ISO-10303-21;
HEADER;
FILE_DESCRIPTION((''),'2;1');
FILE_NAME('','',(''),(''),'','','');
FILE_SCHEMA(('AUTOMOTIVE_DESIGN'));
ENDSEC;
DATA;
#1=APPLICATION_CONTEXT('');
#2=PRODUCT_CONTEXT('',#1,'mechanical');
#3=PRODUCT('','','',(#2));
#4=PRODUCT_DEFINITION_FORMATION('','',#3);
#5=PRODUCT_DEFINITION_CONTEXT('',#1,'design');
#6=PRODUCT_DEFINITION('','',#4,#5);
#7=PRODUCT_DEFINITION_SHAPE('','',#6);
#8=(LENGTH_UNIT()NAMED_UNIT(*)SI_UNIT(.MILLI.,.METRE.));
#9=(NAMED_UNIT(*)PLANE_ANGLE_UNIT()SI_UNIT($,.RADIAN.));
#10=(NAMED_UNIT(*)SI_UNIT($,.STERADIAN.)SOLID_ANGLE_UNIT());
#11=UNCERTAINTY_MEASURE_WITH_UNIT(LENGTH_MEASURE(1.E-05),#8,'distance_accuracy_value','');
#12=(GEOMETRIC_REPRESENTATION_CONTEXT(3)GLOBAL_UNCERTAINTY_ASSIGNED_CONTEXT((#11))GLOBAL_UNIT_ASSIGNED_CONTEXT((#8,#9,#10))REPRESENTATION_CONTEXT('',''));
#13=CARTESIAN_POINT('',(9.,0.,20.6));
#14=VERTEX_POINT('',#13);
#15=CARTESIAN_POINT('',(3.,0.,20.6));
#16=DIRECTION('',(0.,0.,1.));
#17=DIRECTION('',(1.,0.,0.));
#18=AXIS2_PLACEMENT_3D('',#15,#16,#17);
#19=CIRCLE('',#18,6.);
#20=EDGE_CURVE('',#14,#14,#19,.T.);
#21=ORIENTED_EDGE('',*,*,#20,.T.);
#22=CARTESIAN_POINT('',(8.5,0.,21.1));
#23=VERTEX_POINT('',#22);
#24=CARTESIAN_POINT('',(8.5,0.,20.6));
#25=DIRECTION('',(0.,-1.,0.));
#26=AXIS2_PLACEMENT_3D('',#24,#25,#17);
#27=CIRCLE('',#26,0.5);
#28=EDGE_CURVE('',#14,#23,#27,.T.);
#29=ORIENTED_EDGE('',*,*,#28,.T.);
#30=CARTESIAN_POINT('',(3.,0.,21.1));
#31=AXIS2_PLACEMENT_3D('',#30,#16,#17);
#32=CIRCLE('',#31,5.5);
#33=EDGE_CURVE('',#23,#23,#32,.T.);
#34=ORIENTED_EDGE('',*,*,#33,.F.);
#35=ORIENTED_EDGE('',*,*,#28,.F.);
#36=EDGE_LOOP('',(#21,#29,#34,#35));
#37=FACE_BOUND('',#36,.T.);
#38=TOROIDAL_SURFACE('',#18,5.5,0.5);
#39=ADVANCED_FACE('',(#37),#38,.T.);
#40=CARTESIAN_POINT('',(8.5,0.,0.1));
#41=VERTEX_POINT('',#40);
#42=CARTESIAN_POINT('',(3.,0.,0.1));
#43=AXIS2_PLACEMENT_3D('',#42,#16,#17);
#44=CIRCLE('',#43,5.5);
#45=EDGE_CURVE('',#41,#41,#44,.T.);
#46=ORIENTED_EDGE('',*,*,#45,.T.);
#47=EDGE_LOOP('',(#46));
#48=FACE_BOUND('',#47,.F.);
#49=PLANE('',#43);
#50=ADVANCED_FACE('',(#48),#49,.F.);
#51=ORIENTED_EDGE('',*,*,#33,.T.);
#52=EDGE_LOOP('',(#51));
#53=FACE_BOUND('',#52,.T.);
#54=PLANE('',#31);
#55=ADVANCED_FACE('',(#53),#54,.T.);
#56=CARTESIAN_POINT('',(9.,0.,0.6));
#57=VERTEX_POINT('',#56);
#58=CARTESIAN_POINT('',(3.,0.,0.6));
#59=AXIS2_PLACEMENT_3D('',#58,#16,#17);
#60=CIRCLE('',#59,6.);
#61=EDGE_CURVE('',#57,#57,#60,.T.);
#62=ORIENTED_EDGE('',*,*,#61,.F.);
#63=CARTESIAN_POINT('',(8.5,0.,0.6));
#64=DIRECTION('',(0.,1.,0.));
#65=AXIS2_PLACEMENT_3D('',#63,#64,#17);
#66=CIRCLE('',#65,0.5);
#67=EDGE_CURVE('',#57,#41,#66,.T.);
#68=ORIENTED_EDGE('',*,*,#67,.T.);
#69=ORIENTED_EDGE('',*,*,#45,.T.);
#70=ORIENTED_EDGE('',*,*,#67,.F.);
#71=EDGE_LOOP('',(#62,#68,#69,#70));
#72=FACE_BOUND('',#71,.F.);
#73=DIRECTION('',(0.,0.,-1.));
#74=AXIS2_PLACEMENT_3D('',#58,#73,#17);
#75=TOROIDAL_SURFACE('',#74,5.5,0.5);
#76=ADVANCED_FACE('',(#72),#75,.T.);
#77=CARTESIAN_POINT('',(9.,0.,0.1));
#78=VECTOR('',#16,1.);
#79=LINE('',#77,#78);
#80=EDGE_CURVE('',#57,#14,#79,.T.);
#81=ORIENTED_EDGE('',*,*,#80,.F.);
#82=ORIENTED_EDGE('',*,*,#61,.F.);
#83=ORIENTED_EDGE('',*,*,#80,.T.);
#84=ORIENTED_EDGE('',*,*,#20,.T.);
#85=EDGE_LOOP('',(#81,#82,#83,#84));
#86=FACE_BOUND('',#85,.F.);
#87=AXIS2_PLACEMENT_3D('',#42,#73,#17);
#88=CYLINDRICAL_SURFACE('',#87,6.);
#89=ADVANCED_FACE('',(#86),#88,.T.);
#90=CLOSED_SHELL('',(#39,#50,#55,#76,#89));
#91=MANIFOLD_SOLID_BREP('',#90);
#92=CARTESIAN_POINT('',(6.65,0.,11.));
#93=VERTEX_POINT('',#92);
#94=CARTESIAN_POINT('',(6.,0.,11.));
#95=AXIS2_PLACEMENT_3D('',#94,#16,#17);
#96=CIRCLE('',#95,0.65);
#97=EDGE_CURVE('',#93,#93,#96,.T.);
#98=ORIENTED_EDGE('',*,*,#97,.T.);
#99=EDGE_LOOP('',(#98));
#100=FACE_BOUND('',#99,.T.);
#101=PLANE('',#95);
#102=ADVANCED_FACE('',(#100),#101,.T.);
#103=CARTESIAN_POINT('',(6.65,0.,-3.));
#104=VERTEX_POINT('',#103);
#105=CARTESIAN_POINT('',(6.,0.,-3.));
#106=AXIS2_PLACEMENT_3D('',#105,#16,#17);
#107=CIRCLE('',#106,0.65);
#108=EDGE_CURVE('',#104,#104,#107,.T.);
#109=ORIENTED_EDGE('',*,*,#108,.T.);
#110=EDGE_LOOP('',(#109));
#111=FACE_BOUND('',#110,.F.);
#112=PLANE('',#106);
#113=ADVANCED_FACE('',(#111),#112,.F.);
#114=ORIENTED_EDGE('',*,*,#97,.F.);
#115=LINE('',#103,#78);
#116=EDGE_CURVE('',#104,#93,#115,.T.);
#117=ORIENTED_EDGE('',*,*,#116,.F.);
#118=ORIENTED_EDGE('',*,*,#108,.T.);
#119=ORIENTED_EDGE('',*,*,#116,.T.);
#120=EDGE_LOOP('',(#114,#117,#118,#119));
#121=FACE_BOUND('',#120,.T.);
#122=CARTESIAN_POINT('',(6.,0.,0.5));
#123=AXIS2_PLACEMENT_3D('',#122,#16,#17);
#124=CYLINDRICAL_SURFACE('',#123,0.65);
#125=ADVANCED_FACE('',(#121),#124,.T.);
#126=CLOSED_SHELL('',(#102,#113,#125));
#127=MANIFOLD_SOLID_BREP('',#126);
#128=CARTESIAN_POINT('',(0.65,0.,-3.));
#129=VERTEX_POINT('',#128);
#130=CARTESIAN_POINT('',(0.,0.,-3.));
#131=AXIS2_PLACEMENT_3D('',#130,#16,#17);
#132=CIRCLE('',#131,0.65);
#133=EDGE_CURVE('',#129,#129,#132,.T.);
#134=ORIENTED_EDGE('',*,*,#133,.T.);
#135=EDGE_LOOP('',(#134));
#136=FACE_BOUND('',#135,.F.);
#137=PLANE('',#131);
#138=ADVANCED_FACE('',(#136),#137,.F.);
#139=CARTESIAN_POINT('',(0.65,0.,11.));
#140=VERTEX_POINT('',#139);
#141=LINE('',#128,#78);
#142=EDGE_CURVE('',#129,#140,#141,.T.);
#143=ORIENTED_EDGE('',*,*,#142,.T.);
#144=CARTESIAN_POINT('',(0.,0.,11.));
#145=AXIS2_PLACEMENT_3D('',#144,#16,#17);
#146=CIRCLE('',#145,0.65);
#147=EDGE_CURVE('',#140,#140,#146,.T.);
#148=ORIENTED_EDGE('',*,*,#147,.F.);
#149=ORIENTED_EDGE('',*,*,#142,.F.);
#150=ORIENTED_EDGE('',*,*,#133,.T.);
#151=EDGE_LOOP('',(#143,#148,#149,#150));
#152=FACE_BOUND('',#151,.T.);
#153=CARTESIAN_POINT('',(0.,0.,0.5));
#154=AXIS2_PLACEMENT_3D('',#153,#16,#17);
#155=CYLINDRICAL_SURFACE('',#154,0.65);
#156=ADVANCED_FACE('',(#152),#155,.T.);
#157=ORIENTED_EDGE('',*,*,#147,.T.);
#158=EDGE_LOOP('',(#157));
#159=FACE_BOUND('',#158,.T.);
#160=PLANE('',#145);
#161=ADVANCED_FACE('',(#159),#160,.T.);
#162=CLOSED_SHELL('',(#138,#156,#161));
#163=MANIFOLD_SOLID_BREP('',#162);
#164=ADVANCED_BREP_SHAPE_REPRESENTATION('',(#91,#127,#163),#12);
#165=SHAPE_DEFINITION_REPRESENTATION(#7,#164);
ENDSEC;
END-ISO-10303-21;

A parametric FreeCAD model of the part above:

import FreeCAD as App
import Part
import Sketcher


def edges_at(feature, points):
    """Names of the edges that pass closest to the given points."""
    edges = feature.Shape.Edges
    near = lambda p: min(range(len(edges)), key=lambda i: edges[i].distToShape(Part.Vertex(*p))[0])
    return sorted({f"Edge{near(p) + 1}" for p in points})

doc = App.newDocument("Part")
params = doc.addObject("Spreadsheet::Sheet", "Params")
for row, (alias, value) in enumerate([
    ("sketch1_diameter", "1.3 mm"),
    ("pad1_length", "10.5 mm"),
    ("pad1_length2", "3.5 mm"),
    ("sketch2_diameter", "12 mm"),
    ("pad2_length", "21 mm"),
    ("fillet_radius", "0.5 mm"),
], start=1):
    params.set(f"A{row}", alias)
    params.set(f"B{row}", "=" + value)
    params.setAlias(f"B{row}", alias)

body = doc.addObject("PartDesign::Body", "Body")
body.AllowCompound = True

sketch1 = body.newObject("Sketcher::SketchObject", "Sketch")
sketch1.AttachmentSupport = (doc.getObject("XY_Plane"), [""])
sketch1.MapMode = "FlatFace"
sketch1.AttachmentOffset = App.Placement(App.Vector(0, 0, 0.5), App.Rotation())
sketch1.addGeometry([
    Part.Circle(App.Vector(0, 0, 0), App.Vector(0, 0, 1), 0.7),
    Part.Circle(App.Vector(6, 0, 0), App.Vector(0, 0, 1), 0.7),
], False)
sketch1.addConstraint([
    Sketcher.Constraint("Coincident", 0, 3, -1, 1),
    Sketcher.Constraint("Equal", 0, 1),
    Sketcher.Constraint("PointOnObject", 1, 3, -1),
    Sketcher.Constraint("Diameter", 0, 1.3),
    Sketcher.Constraint("DistanceX", -1, 1, 1, 3, 6.0),
])
sketch1.setExpression("Constraints[3]", "Params.sketch1_diameter")
pad1 = body.newObject("PartDesign::Pad", "Pad")
pad1.Profile = sketch1
pad1.Type = "TwoLengths"
pad1.setExpression("Length", "Params.pad1_length")
pad1.setExpression("Length2", "Params.pad1_length2")
body2 = doc.addObject("PartDesign::Body", "Body001")

sketch2 = body2.newObject("Sketcher::SketchObject", "Sketch001")
sketch2.AttachmentSupport = (doc.getObject("XY_Plane001"), [""])
sketch2.MapMode = "FlatFace"
sketch2.AttachmentOffset = App.Placement(App.Vector(0, 0, 0.1), App.Rotation())
sketch2.addGeometry(Part.Circle(App.Vector(3, 0, 0), App.Vector(0, 0, 1), 6), False)
sketch2.addConstraint([
    Sketcher.Constraint("PointOnObject", 0, 3, -1),
    Sketcher.Constraint("Diameter", 0, 12.0),
    Sketcher.Constraint("DistanceX", -1, 1, 0, 3, 3.0),
])
sketch2.setExpression("Constraints[1]", "Params.sketch2_diameter")
pad2 = body2.newObject("PartDesign::Pad", "Pad001")
pad2.Profile = sketch2
pad2.setExpression("Length", "Params.pad2_length")
doc.recompute()

fillet = body2.newObject("PartDesign::Fillet", "Fillet")
fillet.Base = (pad2, edges_at(pad2, [(-3, 0, 0.1), (-3, 0, 21.1)]))
fillet.setExpression("Radius", "Params.fillet_radius")

doc.recompute()
